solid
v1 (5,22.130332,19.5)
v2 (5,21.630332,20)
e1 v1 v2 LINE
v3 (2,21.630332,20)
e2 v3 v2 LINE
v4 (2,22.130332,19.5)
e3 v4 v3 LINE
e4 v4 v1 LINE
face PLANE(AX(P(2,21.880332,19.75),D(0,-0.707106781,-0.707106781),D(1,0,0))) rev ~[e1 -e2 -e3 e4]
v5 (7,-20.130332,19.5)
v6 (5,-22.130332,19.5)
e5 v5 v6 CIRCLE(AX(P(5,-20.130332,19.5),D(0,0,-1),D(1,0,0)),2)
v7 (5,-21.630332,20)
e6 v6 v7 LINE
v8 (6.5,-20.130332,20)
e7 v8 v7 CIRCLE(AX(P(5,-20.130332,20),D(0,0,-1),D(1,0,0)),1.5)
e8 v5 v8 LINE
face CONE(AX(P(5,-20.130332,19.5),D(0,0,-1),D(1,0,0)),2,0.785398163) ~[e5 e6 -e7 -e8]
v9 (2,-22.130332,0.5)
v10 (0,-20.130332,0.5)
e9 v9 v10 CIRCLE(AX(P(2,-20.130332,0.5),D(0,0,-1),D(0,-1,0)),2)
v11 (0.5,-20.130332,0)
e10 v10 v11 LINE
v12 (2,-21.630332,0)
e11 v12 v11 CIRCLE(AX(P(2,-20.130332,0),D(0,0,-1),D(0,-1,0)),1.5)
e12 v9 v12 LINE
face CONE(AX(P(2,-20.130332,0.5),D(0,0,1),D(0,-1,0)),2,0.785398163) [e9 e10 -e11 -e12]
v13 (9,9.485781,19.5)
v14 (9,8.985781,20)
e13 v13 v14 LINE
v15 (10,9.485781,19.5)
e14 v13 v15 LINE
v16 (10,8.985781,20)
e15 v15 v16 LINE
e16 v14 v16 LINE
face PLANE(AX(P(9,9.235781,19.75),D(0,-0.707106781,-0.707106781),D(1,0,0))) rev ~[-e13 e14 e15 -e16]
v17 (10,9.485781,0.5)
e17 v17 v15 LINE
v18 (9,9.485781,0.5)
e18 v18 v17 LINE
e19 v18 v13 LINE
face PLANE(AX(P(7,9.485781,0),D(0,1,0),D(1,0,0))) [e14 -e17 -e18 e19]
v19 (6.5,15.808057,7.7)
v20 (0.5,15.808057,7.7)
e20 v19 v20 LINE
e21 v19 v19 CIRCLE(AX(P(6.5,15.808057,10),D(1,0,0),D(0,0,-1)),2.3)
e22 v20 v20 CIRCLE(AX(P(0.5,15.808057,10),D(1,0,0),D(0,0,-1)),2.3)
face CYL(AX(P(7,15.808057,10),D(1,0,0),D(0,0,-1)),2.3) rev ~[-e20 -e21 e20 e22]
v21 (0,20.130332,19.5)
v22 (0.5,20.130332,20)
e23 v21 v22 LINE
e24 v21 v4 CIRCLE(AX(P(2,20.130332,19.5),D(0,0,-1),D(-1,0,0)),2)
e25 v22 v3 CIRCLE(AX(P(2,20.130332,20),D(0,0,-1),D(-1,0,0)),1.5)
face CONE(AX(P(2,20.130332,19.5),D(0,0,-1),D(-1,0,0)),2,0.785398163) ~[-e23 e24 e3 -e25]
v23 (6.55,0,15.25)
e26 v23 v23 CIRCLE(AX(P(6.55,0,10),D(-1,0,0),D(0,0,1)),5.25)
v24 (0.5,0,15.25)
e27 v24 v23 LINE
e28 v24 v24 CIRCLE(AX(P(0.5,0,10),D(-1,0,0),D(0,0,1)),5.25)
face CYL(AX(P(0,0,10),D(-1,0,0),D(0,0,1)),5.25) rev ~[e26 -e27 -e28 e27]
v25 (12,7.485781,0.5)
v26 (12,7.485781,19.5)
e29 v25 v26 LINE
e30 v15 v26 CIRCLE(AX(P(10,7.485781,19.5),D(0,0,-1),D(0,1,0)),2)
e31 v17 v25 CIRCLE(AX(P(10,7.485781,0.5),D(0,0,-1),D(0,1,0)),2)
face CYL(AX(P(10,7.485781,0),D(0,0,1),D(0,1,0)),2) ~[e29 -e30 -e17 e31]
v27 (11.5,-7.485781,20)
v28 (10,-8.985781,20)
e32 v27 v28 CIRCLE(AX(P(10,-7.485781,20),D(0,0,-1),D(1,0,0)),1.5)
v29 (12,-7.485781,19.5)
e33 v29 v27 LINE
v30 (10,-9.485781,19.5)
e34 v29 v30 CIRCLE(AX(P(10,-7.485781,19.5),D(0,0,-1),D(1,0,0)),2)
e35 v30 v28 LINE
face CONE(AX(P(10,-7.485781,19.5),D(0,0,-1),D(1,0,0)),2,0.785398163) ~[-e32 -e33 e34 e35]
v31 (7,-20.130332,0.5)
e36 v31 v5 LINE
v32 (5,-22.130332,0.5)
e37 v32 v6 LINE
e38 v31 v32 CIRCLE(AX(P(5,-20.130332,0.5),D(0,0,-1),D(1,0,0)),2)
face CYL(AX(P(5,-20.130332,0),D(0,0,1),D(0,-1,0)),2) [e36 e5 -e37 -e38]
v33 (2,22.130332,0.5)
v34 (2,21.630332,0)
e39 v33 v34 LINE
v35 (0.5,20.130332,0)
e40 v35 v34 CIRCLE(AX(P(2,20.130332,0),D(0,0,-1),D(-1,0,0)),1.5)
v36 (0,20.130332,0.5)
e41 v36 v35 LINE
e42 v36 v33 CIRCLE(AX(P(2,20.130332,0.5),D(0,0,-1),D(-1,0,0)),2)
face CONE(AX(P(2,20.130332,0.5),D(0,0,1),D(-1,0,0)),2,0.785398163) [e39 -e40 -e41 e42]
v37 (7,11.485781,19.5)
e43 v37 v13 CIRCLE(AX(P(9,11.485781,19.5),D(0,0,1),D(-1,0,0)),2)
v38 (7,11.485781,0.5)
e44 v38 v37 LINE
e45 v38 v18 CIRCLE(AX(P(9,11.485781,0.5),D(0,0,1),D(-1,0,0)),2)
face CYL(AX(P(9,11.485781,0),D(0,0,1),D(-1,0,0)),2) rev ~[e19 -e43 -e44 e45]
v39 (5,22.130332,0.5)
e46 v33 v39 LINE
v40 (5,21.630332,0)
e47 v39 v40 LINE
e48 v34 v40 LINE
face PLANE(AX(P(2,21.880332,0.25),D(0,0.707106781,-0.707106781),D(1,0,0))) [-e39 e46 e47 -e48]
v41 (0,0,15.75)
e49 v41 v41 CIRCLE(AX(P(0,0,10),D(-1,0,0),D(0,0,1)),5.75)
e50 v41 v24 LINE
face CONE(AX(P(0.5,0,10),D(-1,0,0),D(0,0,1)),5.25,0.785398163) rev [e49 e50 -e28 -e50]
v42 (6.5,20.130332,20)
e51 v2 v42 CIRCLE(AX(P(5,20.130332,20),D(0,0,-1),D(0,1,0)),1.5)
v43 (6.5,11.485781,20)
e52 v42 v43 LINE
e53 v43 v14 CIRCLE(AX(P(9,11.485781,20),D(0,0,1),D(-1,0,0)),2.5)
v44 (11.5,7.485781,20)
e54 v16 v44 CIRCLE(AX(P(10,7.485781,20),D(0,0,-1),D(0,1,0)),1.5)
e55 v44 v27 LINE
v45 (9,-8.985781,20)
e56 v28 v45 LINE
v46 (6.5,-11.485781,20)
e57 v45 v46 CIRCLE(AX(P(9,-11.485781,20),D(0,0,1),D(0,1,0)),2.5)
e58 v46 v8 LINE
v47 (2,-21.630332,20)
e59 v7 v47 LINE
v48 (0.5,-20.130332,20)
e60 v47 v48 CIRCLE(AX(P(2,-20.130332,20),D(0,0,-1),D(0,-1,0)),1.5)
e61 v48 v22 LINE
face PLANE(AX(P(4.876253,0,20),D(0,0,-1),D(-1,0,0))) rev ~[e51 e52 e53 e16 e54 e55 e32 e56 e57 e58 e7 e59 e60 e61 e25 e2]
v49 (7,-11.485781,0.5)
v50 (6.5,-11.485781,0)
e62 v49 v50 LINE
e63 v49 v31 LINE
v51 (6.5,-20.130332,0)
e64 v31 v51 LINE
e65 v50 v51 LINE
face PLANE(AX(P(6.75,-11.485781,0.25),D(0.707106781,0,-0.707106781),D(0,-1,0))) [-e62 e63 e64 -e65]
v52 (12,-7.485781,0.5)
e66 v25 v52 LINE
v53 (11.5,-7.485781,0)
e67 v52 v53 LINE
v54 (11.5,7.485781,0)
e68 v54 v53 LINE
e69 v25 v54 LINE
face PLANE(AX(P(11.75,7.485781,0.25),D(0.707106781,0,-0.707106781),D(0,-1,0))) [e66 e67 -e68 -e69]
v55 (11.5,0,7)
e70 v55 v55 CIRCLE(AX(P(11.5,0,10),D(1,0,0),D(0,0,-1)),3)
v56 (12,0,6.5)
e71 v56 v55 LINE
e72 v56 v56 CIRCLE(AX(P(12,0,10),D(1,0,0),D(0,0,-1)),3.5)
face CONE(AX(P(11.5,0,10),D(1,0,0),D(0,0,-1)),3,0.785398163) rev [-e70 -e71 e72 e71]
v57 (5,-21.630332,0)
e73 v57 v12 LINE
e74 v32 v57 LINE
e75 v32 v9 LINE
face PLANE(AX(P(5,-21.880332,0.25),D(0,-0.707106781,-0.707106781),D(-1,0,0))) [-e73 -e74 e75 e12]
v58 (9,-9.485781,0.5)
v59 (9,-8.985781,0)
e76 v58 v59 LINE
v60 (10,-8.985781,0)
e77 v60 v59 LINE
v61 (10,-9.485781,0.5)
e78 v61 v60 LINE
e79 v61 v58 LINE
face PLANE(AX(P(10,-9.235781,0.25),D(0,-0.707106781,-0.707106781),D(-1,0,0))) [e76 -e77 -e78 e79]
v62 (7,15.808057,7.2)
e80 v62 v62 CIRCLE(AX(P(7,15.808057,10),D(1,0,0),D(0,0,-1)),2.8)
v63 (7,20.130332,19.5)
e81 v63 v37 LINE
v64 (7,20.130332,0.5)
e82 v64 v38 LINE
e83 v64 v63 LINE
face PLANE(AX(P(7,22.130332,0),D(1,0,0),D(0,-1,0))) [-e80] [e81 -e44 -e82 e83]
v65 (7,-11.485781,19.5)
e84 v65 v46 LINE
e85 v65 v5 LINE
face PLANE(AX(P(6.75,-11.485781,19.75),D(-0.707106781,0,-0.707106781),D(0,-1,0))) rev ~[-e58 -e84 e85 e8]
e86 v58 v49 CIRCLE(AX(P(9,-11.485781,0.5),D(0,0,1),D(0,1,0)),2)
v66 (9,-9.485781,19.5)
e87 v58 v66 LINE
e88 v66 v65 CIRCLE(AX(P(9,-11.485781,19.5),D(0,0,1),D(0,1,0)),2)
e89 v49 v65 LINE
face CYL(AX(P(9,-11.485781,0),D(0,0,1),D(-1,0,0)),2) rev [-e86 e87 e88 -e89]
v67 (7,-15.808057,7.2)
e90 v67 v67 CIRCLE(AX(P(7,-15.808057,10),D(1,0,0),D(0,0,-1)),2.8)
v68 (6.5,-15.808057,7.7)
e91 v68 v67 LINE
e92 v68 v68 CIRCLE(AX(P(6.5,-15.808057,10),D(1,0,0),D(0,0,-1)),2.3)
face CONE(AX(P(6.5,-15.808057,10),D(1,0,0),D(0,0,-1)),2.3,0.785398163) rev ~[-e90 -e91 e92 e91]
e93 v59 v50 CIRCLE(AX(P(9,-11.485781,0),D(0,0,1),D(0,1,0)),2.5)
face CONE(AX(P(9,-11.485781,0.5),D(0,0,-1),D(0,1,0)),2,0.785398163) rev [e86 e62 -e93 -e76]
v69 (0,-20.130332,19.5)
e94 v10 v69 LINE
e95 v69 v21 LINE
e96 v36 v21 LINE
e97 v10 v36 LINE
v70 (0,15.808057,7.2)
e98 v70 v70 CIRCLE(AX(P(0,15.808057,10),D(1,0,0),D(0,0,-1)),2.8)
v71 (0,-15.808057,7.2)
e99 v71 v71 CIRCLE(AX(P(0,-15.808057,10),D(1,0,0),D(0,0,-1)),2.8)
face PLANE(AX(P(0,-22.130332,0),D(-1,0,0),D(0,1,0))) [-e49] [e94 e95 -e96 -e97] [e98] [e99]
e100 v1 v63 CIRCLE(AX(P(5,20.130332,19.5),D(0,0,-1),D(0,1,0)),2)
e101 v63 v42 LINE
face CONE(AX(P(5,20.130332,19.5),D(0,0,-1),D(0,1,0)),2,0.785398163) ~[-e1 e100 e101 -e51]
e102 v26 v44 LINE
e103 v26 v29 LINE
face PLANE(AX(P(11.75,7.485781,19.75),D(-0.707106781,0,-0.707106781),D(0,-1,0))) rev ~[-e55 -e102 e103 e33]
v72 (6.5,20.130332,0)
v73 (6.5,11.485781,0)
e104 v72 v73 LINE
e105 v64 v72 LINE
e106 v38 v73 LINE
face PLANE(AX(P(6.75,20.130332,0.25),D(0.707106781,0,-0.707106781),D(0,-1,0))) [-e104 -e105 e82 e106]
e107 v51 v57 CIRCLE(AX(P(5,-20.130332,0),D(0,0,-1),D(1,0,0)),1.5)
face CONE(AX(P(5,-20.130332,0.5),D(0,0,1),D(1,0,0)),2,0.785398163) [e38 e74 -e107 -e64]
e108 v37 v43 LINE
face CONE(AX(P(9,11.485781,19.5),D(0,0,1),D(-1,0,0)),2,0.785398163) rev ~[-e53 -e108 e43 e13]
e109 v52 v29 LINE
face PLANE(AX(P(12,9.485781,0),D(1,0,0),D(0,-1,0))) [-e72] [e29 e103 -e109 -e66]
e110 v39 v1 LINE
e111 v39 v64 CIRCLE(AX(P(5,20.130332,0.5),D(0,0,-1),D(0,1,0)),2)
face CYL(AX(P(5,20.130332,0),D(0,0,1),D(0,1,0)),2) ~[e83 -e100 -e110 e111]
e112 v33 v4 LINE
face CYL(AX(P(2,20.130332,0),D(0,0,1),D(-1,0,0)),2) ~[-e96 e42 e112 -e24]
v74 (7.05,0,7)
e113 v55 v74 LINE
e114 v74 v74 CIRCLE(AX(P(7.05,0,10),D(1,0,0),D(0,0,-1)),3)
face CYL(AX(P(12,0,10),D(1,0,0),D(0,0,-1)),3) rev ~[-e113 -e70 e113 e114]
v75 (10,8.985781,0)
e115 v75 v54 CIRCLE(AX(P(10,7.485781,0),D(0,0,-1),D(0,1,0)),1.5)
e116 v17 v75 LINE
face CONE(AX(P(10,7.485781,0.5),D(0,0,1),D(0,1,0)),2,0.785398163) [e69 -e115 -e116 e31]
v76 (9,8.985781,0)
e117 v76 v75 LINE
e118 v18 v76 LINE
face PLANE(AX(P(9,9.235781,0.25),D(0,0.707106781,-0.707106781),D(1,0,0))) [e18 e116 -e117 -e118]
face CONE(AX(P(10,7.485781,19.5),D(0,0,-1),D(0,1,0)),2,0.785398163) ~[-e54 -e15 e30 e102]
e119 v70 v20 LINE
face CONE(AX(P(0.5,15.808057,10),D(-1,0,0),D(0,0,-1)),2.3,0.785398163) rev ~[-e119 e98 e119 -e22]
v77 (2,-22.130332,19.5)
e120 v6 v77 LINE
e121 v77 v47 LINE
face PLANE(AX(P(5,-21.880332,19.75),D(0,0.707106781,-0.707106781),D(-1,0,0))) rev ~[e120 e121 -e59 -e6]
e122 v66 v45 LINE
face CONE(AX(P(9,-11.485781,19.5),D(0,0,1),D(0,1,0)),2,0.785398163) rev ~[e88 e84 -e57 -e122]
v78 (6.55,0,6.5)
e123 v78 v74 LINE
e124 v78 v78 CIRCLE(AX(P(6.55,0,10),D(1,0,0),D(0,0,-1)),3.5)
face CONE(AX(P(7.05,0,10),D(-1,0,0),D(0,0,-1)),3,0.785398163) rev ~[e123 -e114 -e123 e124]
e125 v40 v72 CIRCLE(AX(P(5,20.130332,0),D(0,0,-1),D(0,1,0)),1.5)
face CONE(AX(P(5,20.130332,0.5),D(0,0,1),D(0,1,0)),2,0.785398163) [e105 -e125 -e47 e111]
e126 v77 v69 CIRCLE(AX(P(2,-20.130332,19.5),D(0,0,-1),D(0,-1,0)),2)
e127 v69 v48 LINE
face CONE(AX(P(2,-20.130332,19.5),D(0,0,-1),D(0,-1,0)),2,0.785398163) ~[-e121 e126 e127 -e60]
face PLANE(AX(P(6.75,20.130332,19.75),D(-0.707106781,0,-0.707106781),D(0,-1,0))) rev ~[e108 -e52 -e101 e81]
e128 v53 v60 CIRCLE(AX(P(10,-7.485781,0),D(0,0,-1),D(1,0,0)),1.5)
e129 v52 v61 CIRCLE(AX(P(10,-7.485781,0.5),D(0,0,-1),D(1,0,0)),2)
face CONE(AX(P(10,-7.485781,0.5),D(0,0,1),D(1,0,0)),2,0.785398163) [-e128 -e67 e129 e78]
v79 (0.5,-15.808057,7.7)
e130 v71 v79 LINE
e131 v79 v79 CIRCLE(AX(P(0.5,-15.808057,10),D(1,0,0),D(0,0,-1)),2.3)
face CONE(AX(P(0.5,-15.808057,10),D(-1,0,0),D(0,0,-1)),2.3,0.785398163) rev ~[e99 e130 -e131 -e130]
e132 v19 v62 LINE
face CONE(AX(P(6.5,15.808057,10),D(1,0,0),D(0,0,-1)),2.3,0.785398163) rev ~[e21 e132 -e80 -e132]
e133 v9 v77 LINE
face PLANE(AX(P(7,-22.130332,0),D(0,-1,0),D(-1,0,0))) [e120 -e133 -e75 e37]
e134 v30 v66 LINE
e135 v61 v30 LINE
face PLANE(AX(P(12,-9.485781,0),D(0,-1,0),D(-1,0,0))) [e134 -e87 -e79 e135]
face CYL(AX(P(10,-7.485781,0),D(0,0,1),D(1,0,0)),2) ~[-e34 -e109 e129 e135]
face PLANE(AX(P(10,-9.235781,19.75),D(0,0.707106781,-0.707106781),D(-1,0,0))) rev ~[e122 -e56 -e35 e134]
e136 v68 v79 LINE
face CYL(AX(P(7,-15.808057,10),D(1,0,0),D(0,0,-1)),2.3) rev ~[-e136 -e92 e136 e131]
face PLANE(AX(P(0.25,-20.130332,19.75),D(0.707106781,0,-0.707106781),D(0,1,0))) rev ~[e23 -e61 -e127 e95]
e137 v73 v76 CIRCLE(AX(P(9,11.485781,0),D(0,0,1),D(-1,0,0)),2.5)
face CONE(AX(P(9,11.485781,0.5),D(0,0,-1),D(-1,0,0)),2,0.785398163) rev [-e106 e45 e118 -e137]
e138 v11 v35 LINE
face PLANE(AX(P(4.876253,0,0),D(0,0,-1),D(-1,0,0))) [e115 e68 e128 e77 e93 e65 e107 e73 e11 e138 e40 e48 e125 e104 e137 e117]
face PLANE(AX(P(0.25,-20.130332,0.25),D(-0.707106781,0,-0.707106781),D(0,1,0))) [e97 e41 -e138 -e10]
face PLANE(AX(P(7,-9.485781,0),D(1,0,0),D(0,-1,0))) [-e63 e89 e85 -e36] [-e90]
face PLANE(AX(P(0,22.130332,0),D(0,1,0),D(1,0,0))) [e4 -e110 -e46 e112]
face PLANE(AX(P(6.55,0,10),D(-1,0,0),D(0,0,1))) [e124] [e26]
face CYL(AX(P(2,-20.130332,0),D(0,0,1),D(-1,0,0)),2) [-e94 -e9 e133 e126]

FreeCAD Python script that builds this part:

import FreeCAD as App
import Part
import Sketcher
from FreeCAD import Vector
Q = App.Units.Quantity


def edges_at(feature, points):
    """Names of the edges that pass closest to the given points."""
    edges = feature.Shape.Edges
    near = lambda p: min(range(len(edges)), key=lambda i: edges[i].distToShape(Part.Vertex(*p))[0])
    return sorted({f"Edge{near(p) + 1}" for p in points})

doc = App.newDocument("Part")
body = doc.addObject("PartDesign::Body", "Body")

sketch1 = body.newObject("Sketcher::SketchObject", "Sketch")
sketch1.AttachmentSupport = (doc.getObject("XY_Plane"), [""])
sketch1.MapMode = "FlatFace"
sketch1.addGeometry(Part.LineSegment(Vector(0, 22.130332, 0), Vector(0, -22.130332, 0)), False)
sketch1.addGeometry(Part.LineSegment(Vector(0, -22.130332, 0), Vector(7, -22.130332, 0)), False)
sketch1.addGeometry(Part.LineSegment(Vector(7, -22.130332, 0), Vector(7, -9.485781, 0)), False)
sketch1.addGeometry(Part.LineSegment(Vector(7, -9.485781, 0), Vector(12, -9.485781, 0)), False)
sketch1.addGeometry(Part.LineSegment(Vector(12, -9.485781, 0), Vector(12, 9.485781, 0)), False)
sketch1.addGeometry(Part.LineSegment(Vector(12, 9.485781, 0), Vector(7, 9.485781, 0)), False)
sketch1.addGeometry(Part.LineSegment(Vector(7, 9.485781, 0), Vector(7, 22.130332, 0)), False)
sketch1.addGeometry(Part.LineSegment(Vector(7, 22.130332, 0), Vector(0, 22.130332, 0)), False)
sketch1.addConstraint(Sketcher.Constraint("Coincident", 0, 2, 1, 1))
sketch1.addConstraint(Sketcher.Constraint("Coincident", 1, 2, 2, 1))
sketch1.addConstraint(Sketcher.Constraint("Coincident", 2, 2, 3, 1))
sketch1.addConstraint(Sketcher.Constraint("Coincident", 3, 2, 4, 1))
sketch1.addConstraint(Sketcher.Constraint("Coincident", 4, 2, 5, 1))
sketch1.addConstraint(Sketcher.Constraint("Coincident", 5, 2, 6, 1))
sketch1.addConstraint(Sketcher.Constraint("Coincident", 6, 2, 7, 1))
sketch1.addConstraint(Sketcher.Constraint("Coincident", 7, 2, 0, 1))
sketch1.addConstraint(Sketcher.Constraint("Vertical", 0))
sketch1.addConstraint(Sketcher.Constraint("Horizontal", 1))
sketch1.addConstraint(Sketcher.Constraint("Vertical", 2))
sketch1.addConstraint(Sketcher.Constraint("Horizontal", 3))
sketch1.addConstraint(Sketcher.Constraint("Vertical", 4))
sketch1.addConstraint(Sketcher.Constraint("Horizontal", 5))
sketch1.addConstraint(Sketcher.Constraint("Vertical", 6))
sketch1.addConstraint(Sketcher.Constraint("Horizontal", 7))
sketch1.addConstraint(Sketcher.Constraint("Symmetric", 0, 2, 7, 2, -1, 1))
sketch1.addConstraint(Sketcher.Constraint("Symmetric", 2, 2, 5, 2, -1))
sketch1.addConstraint(Sketcher.Constraint("DistanceX", 1, 1, 1, 2, Q("7 mm")))
sketch1.addConstraint(Sketcher.Constraint("DistanceX", 3, 1, 3, 2, Q("5 mm")))
sketch1.addConstraint(Sketcher.Constraint("DistanceY", 2, 1, 2, 2, Q("12.644551 mm")))
sketch1.addConstraint(Sketcher.Constraint("DistanceY", 0, 2, 0, 1, Q("44.260665 mm")))
pad1 = body.newObject("PartDesign::Pad", "Pad")
pad1.Profile = sketch1
pad1.Length = 20

sketch2 = body.newObject("Sketcher::SketchObject", "Sketch001")
sketch2.AttachmentSupport = (doc.getObject("YZ_Plane"), [""])
sketch2.MapMode = "FlatFace"
sketch2.AttachmentOffset = App.Placement(Vector(0, 0, 12), App.Rotation())
sketch2.addGeometry(Part.Circle(Vector(0, 10, 0), Vector(0, 0, 1), 3), False)
sketch2.addConstraint(Sketcher.Constraint("PointOnObject", 0, 3, -2))
sketch2.addConstraint(Sketcher.Constraint("Diameter", 0, Q("6 mm")))
sketch2.addConstraint(Sketcher.Constraint("DistanceY", -1, 1, 0, 3, Q("10 mm")))
pocket1 = body.newObject("PartDesign::Pocket", "Pocket")
pocket1.Profile = sketch2
pocket1.Length = 20

sketch3 = body.newObject("Sketcher::SketchObject", "Sketch002")
sketch3.AttachmentSupport = (doc.getObject("YZ_Plane"), [""])
sketch3.MapMode = "FlatFace"
sketch3.addGeometry(Part.Circle(Vector(0, 10, 0), Vector(0, 0, 1), 5.25), False)
sketch3.addConstraint(Sketcher.Constraint("PointOnObject", 0, 3, -2))
sketch3.addConstraint(Sketcher.Constraint("Diameter", 0, Q("10.5 mm")))
sketch3.addConstraint(Sketcher.Constraint("DistanceY", -1, 1, 0, 3, Q("10 mm")))
pocket2 = body.newObject("PartDesign::Pocket", "Pocket001")
pocket2.Profile = sketch3
pocket2.Length = 6.55
pocket2.Reversed = True

sketch4 = body.newObject("Sketcher::SketchObject", "Sketch003")
sketch4.AttachmentSupport = (doc.getObject("YZ_Plane"), [""])
sketch4.MapMode = "FlatFace"
sketch4.AttachmentOffset = App.Placement(Vector(0, 0, 7), App.Rotation())
sketch4.addGeometry(Part.Circle(Vector(-15.808057, 10, 0), Vector(0, 0, 1), 2.3), False)
sketch4.addGeometry(Part.Circle(Vector(15.808057, 10, 0), Vector(0, 0, 1), 2.3), False)
sketch4.addConstraint(Sketcher.Constraint("Equal", 0, 1))
sketch4.addConstraint(Sketcher.Constraint("Symmetric", 0, 3, 1, 3, -2))
sketch4.addConstraint(Sketcher.Constraint("Diameter", 0, Q("4.6 mm")))
sketch4.addConstraint(Sketcher.Constraint("DistanceY", -1, 1, 0, 3, Q("10 mm")))
sketch4.addConstraint(Sketcher.Constraint("DistanceX", 0, 3, -1, 1, Q("15.808057 mm")))
pocket3 = body.newObject("PartDesign::Pocket", "Pocket002")
pocket3.Profile = sketch4
pocket3.Length = 10
doc.recompute()

fillet = body.newObject("PartDesign::Fillet", "Fillet")
fillet.Base = (pocket3, edges_at(pocket3, [
    (7, -9.486, 10),
    (7, -22.13, 10),
    (0, -22.13, 10),
    (0, 22.13, 10),
    (7, 22.13, 10),
    (7, 9.486, 10),
    (12, 9.486, 10),
    (12, -9.486, 10),
]))
fillet.Radius = 2
doc.recompute()

chamfer = body.newObject("PartDesign::Chamfer", "Chamfer")
chamfer.Base = (fillet, edges_at(fillet, [
    (12, 0, 13),
    (0, 0, 4.75),
    (6.55, 0, 13),
    (0, -15.808, 12.3),
    (7, -15.808, 12.3),
    (0, 15.808, 12.3),
    (7, 15.808, 12.3),
    (0, 0, 0),
    (0, 0, 20),
    (9.5, -9.486, 0),
    (7, -15.808, 0),
    (3.5, -22.13, 0),
    (3.5, 22.13, 0),
    (7, 15.808, 0),
    (9.5, 9.486, 0),
    (12, 0, 0),
    (0.586, -21.545, 0),
    (6.414, -21.545, 0),
    (11.414, -8.9, 0),
    (11.414, 8.9, 0),
    (6.414, 21.545, 0),
    (0.586, 21.545, 0),
    (3.5, 22.13, 20),
    (9.5, -9.486, 20),
    (12, 0, 20),
    (9.5, 9.486, 20),
    (7, 15.808, 20),
    (3.5, -22.13, 20),
    (7, -15.808, 20),
    (0.586, -21.545, 20),
    (6.414, -21.545, 20),
    (11.414, -8.9, 20),
    (11.414, 8.9, 20),
    (6.414, 21.545, 20),
    (0.586, 21.545, 20),
    (7.586, -10.072, 0),
    (7.586, -10.072, 20),
    (7.586, 10.072, 0),
    (7.586, 10.072, 20),
]))
chamfer.Size = 0.5

doc.recompute()
